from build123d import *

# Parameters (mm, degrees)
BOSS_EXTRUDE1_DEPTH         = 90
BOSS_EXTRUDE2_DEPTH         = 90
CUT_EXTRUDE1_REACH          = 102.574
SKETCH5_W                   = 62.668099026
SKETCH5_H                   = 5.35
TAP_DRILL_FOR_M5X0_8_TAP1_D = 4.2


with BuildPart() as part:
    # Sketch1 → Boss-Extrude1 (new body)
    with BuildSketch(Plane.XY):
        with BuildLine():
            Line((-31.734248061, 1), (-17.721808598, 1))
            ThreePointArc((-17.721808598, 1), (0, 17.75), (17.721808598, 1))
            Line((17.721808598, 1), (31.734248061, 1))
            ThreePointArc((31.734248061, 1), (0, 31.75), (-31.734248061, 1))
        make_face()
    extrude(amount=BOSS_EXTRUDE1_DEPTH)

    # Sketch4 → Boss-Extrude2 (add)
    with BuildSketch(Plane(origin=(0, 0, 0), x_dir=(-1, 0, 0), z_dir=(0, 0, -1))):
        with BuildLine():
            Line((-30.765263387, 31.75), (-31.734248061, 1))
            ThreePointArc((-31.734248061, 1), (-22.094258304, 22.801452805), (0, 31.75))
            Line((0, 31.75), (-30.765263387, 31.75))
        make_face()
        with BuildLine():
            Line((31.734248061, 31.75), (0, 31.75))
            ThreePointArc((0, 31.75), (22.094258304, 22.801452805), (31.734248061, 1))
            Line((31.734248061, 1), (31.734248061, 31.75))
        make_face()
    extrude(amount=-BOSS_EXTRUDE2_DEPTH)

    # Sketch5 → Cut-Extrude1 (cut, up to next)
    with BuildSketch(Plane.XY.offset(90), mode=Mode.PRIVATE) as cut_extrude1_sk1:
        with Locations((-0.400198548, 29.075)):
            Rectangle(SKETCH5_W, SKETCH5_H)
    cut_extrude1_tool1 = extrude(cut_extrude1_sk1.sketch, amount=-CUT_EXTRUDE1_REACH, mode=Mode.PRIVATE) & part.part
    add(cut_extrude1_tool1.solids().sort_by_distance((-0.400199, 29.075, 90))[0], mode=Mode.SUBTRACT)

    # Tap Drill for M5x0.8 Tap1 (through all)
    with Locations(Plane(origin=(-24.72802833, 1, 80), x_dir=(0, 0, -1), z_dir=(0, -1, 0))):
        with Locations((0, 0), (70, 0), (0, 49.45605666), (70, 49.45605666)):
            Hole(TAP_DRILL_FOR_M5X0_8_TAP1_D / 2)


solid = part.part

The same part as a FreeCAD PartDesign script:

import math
import FreeCAD as App
import Part
import Sketcher

doc = App.newDocument("Part")
body = doc.addObject("PartDesign::Body", "Body")

# Sketch on XY plane
sketch1 = doc.addObject("Sketcher::SketchObject", "Sketch")
body.addObject(sketch1)
sketch1.AttachmentSupport = (doc.XY_Plane, [""])
sketch1.MapMode = "FlatFace"
sketch1.addGeometry(Part.LineSegment(App.Vector(-32, 1, 0), App.Vector(-18, 1, 0)), False)
sketch1.addGeometry(Part.ArcOfCircle(Part.Circle(App.Vector(0, 0, 0), App.Vector(0, 0, 1), 18), math.radians(3), math.radians(177)), False)
sketch1.addGeometry(Part.LineSegment(App.Vector(18, 1, 0), App.Vector(32, 1, 0)), False)
sketch1.addGeometry(Part.ArcOfCircle(Part.Circle(App.Vector(0, 0, 0), App.Vector(0, 0, 1), 32), math.radians(2), math.radians(178)), False)
sketch1.addConstraint(Sketcher.Constraint("Coincident", 0, 2, 1, 2))
sketch1.addConstraint(Sketcher.Constraint("Coincident", 1, 1, 2, 1))
sketch1.addConstraint(Sketcher.Constraint("Coincident", 2, 2, 3, 1))
sketch1.addConstraint(Sketcher.Constraint("Coincident", 3, 2, 0, 1))
sketch1.addConstraint(Sketcher.Constraint("Horizontal", 0))
sketch1.addConstraint(Sketcher.Constraint("Horizontal", 2))
sketch1.addConstraint(Sketcher.Constraint("Coincident", 1, 3, -1, 1))
sketch1.addConstraint(Sketcher.Constraint("Coincident", 3, 3, -1, 1))
sketch1.addConstraint(Sketcher.Constraint("Horizontal", 0, 2, 1, 1))
sketch1.addConstraint(Sketcher.Constraint("Radius", 1, 17.75))
sketch1.addConstraint(Sketcher.Constraint("Radius", 3, 31.75))
sketch1.addConstraint(Sketcher.Constraint("DistanceY", -1, 1, 0, 2, 1.0))
pad1 = doc.addObject("PartDesign::Pad", "Pad")
body.addObject(pad1)
pad1.Profile = sketch1
pad1.Length = 90

# Sketch on XY plane
sketch2 = doc.addObject("Sketcher::SketchObject", "Sketch001")
body.addObject(sketch2)
sketch2.AttachmentSupport = (doc.XY_Plane, [""])
sketch2.MapMode = "FlatFace"
sketch2.addGeometry(Part.LineSegment(App.Vector(31, 32, 0), App.Vector(32, 1, 0)), False)
sketch2.addGeometry(Part.ArcOfCircle(Part.Circle(App.Vector(0, 0, 0), App.Vector(0, 0, 1), 32), math.radians(2), math.radians(90)), False)
sketch2.addGeometry(Part.LineSegment(App.Vector(0, 32, 0), App.Vector(31, 32, 0)), False)
sketch2.addGeometry(Part.LineSegment(App.Vector(-32, 32, 0), App.Vector(0, 32, 0)), False)
sketch2.addGeometry(Part.ArcOfCircle(Part.Circle(App.Vector(0, 0, 0), App.Vector(0, 0, 1), 32), math.radians(90), math.radians(178)), False)
sketch2.addGeometry(Part.LineSegment(App.Vector(-32, 1, 0), App.Vector(-32, 32, 0)), False)
sketch2.addConstraint(Sketcher.Constraint("Tangent", 0, 2, 1, 1))
sketch2.addConstraint(Sketcher.Constraint("Tangent", 1, 2, 2, 1))
sketch2.addConstraint(Sketcher.Constraint("Coincident", 2, 2, 0, 1))
sketch2.addConstraint(Sketcher.Constraint("Tangent", 3, 2, 4, 1))
sketch2.addConstraint(Sketcher.Constraint("Coincident", 4, 2, 5, 1))
sketch2.addConstraint(Sketcher.Constraint("Coincident", 5, 2, 3, 1))
sketch2.addConstraint(Sketcher.Constraint("Horizontal", 2))
sketch2.addConstraint(Sketcher.Constraint("Horizontal", 3))
sketch2.addConstraint(Sketcher.Constraint("Vertical", 5))
sketch2.addConstraint(Sketcher.Constraint("Coincident", 1, 3, -1, 1))
sketch2.addConstraint(Sketcher.Constraint("Coincident", 4, 3, -1, 1))
sketch2.addConstraint(Sketcher.Constraint("Equal", 1, 4))
sketch2.addConstraint(Sketcher.Constraint("Horizontal", 0, 2, 4, 2))
sketch2.addConstraint(Sketcher.Constraint("Radius", 1, 31.75))
sketch2.addConstraint(Sketcher.Constraint("DistanceY", -1, 1, 0, 2, 1.0))
pad2 = doc.addObject("PartDesign::Pad", "Pad001")
body.addObject(pad2)
pad2.Profile = sketch2
pad2.Length = 90

# Sketch on XY plane
sketch3 = doc.addObject("Sketcher::SketchObject", "Sketch002")
body.addObject(sketch3)
sketch3.AttachmentSupport = (doc.XY_Plane, [""])
sketch3.MapMode = "FlatFace"
sketch3.AttachmentOffset = App.Placement(App.Vector(0, 0, 90), App.Rotation())
sketch3.addGeometry(Part.LineSegment(App.Vector(-32, 32, 0), App.Vector(-32, 26, 0)), False)
sketch3.addGeometry(Part.LineSegment(App.Vector(-32, 26, 0), App.Vector(31, 26, 0)), False)
sketch3.addGeometry(Part.LineSegment(App.Vector(31, 26, 0), App.Vector(31, 32, 0)), False)
sketch3.addGeometry(Part.LineSegment(App.Vector(31, 32, 0), App.Vector(-32, 32, 0)), False)
sketch3.addConstraint(Sketcher.Constraint("Coincident", 0, 2, 1, 1))
sketch3.addConstraint(Sketcher.Constraint("Coincident", 1, 2, 2, 1))
sketch3.addConstraint(Sketcher.Constraint("Coincident", 2, 2, 3, 1))
sketch3.addConstraint(Sketcher.Constraint("Coincident", 3, 2, 0, 1))
sketch3.addConstraint(Sketcher.Constraint("Vertical", 0))
sketch3.addConstraint(Sketcher.Constraint("Horizontal", 1))
sketch3.addConstraint(Sketcher.Constraint("Vertical", 2))
sketch3.addConstraint(Sketcher.Constraint("Horizontal", 3))
sketch3.addConstraint(Sketcher.Constraint("DistanceY", 0, 2, 0, 1, 5.35))
sketch3.addConstraint(Sketcher.Constraint("DistanceY", -1, 1, 0, 2, 26.4))
sketch3.addConstraint(Sketcher.Constraint("DistanceX", 1, 1, 1, 2, 62.668099))
sketch3.addConstraint(Sketcher.Constraint("DistanceX", 0, 2, -1, 1, 31.734248))
pocket1 = doc.addObject("PartDesign::Pocket", "Pocket")
body.addObject(pocket1)
pocket1.Profile = sketch3
pocket1.Type = "UpToFirst"

# Sketch on XZ plane
sketch4 = doc.addObject("Sketcher::SketchObject", "Sketch003")
body.addObject(sketch4)
sketch4.AttachmentSupport = (doc.XZ_Plane, [""])
sketch4.MapMode = "FlatFace"
sketch4.AttachmentOffset = App.Placement(App.Vector(0, 0, -1), App.Rotation())
sketch4.addGeometry(Part.Circle(App.Vector(-24.7, 80, 0), App.Vector(0, 0, 1), 2.1), False)
sketch4.addGeometry(Part.Circle(App.Vector(-24.7, 10, 0), App.Vector(0, 0, 1), 2.1), False)
sketch4.addGeometry(Part.Circle(App.Vector(24.7, 80, 0), App.Vector(0, 0, 1), 2.1), False)
sketch4.addGeometry(Part.Circle(App.Vector(24.7, 10, 0), App.Vector(0, 0, 1), 2.1), False)
sketch4.addConstraint(Sketcher.Constraint("Equal", 0, 1))
sketch4.addConstraint(Sketcher.Constraint("Equal", 1, 2))
sketch4.addConstraint(Sketcher.Constraint("Equal", 2, 3))
sketch4.addConstraint(Sketcher.Constraint("Symmetric", 0, 3, 2, 3, -2))
sketch4.addConstraint(Sketcher.Constraint("Symmetric", 1, 3, 3, 3, -2))
sketch4.addConstraint(Sketcher.Constraint("Vertical", 0, 3, 1, 3))
sketch4.addConstraint(Sketcher.Constraint("Diameter", 0, 4.2))
sketch4.addConstraint(Sketcher.Constraint("DistanceY", -1, 1, 0, 3, 80.0))
sketch4.addConstraint(Sketcher.Constraint("DistanceY", -1, 1, 1, 3, 10.0))
sketch4.addConstraint(Sketcher.Constraint("DistanceX", 0, 3, -1, 1, 24.728028))
doc.recompute()
hole = doc.addObject("PartDesign::Hole", "Hole")
body.addObject(hole)
hole.Profile = sketch4
hole.ThreadType = "None"
hole.Diameter = 4.2
hole.DepthType = "ThroughAll"

doc.recompute()
